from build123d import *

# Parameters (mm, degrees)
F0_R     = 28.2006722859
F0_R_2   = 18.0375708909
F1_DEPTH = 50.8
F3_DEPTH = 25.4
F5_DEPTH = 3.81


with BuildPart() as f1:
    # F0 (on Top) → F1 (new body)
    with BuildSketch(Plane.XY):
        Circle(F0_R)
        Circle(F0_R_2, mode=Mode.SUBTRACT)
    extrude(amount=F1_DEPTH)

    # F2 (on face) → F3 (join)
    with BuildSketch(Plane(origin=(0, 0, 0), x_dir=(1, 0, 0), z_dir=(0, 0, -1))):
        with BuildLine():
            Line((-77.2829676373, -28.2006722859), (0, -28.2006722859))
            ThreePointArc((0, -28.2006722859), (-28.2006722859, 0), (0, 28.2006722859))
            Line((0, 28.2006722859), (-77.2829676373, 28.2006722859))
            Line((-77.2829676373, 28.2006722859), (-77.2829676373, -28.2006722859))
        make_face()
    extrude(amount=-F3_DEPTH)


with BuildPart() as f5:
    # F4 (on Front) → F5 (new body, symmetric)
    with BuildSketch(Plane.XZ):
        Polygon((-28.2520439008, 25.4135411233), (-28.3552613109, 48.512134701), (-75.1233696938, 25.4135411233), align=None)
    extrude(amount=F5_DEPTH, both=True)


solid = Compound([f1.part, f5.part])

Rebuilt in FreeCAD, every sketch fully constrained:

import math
import FreeCAD as App
import Part
import Sketcher

V = App.Vector


def add_polygon(sketch, points):
    """Adds a closed chain of lines whose ends are joined by coincident constraints."""
    first, n = sketch.GeometryCount, len(points)
    for a, b in zip(points, points[1:] + points[:1]):
        sketch.addGeometry(Part.LineSegment(App.Vector(*a, 0), App.Vector(*b, 0)), False)
    for i in range(n):
        sketch.addConstraint(Sketcher.Constraint("Coincident", first + i, 2, first + (i + 1) % n, 1))

doc = App.newDocument("Part")
params = doc.addObject("Spreadsheet::Sheet", "Params")
for row, (alias, value) in enumerate([
    ("pad1_length", "2 in"),
    ("pad2_length", "1 in"),
    ("pad3_length", "0.3 in"),
], start=1):
    params.set(f"A{row}", alias)
    params.set(f"B{row}", "=" + value)
    params.setAlias(f"B{row}", alias)

body = doc.addObject("PartDesign::Body", "Body")

sketch1 = doc.addObject("Sketcher::SketchObject", "Sketch")
body.addObject(sketch1)
sketch1.AttachmentSupport = (doc.XY_Plane, [""])
sketch1.MapMode = "FlatFace"
sketch1.addGeometry(Part.Circle(V(0, 0, 0), V(0, 0, 1), 28), False)
sketch1.addGeometry(Part.Circle(V(0, 0, 0), V(0, 0, 1), 18), False)
sketch1.addConstraint(Sketcher.Constraint("Coincident", 0, 3, -1, 1))
sketch1.addConstraint(Sketcher.Constraint("Coincident", 1, 3, -1, 1))
sketch1.addConstraint(Sketcher.Constraint("Diameter", 1, 36.075142))
sketch1.addConstraint(Sketcher.Constraint("Diameter", 0, 56.401345))
pad1 = doc.addObject("PartDesign::Pad", "Pad")
body.addObject(pad1)
pad1.Profile = sketch1
pad1.setExpression("Length", "Params.pad1_length")

sketch2 = doc.addObject("Sketcher::SketchObject", "Sketch001")
body.addObject(sketch2)
sketch2.AttachmentSupport = (doc.XY_Plane, [""])
sketch2.MapMode = "FlatFace"
sketch2.addGeometry(Part.LineSegment(V(-77, 28, 0), V(0, 28, 0)), False)
sketch2.addGeometry(Part.ArcOfCircle(Part.Circle(V(0, 0, 0), V(0, 0, 1), 28), math.radians(90), math.radians(270)), False)
sketch2.addGeometry(Part.LineSegment(V(0, -28, 0), V(-77, -28, 0)), False)
sketch2.addGeometry(Part.LineSegment(V(-77, -28, 0), V(-77, 28, 0)), False)
sketch2.addConstraint(Sketcher.Constraint("Tangent", 0, 2, 1, 1))
sketch2.addConstraint(Sketcher.Constraint("Tangent", 1, 2, 2, 1))
sketch2.addConstraint(Sketcher.Constraint("Coincident", 2, 2, 3, 1))
sketch2.addConstraint(Sketcher.Constraint("Coincident", 3, 2, 0, 1))
sketch2.addConstraint(Sketcher.Constraint("Horizontal", 0))
sketch2.addConstraint(Sketcher.Constraint("Horizontal", 2))
sketch2.addConstraint(Sketcher.Constraint("Vertical", 3))
sketch2.addConstraint(Sketcher.Constraint("Coincident", 1, 3, -1, 1))
sketch2.addConstraint(Sketcher.Constraint("Radius", 1, 28.200672))
sketch2.addConstraint(Sketcher.Constraint("DistanceX", 0, 1, 0, 2, 77.282968))
pad2 = doc.addObject("PartDesign::Pad", "Pad001")
body.addObject(pad2)
pad2.Profile = sketch2
pad2.setExpression("Length", "Params.pad2_length")
body2 = doc.addObject("PartDesign::Body", "Body001")

sketch3 = doc.addObject("Sketcher::SketchObject", "Sketch002")
body2.addObject(sketch3)
sketch3.AttachmentSupport = (doc.getObject("XZ_Plane001"), [""])
sketch3.MapMode = "FlatFace"
add_polygon(sketch3, [(-28, 25), (-28, 49), (-75, 25)])
sketch3.addConstraint(Sketcher.Constraint("Horizontal", 2))
sketch3.addConstraint(Sketcher.Constraint("DistanceX", 2, 1, 2, 2, 46.871326))
sketch3.addConstraint(Sketcher.Constraint("DistanceX", 0, 2, -1, 1, 28.355261))
sketch3.addConstraint(Sketcher.Constraint("DistanceX", 1, 2, -1, 1, 75.12337))
sketch3.addConstraint(Sketcher.Constraint("DistanceY", -1, 1, 1, 2, 25.413541))
sketch3.addConstraint(Sketcher.Constraint("Distance", 0, 23.098824))
pad3 = doc.addObject("PartDesign::Pad", "Pad002")
body2.addObject(pad3)
pad3.Profile = sketch3
pad3.setExpression("Length", "Params.pad3_length")
pad3.Midplane = True

doc.recompute()
